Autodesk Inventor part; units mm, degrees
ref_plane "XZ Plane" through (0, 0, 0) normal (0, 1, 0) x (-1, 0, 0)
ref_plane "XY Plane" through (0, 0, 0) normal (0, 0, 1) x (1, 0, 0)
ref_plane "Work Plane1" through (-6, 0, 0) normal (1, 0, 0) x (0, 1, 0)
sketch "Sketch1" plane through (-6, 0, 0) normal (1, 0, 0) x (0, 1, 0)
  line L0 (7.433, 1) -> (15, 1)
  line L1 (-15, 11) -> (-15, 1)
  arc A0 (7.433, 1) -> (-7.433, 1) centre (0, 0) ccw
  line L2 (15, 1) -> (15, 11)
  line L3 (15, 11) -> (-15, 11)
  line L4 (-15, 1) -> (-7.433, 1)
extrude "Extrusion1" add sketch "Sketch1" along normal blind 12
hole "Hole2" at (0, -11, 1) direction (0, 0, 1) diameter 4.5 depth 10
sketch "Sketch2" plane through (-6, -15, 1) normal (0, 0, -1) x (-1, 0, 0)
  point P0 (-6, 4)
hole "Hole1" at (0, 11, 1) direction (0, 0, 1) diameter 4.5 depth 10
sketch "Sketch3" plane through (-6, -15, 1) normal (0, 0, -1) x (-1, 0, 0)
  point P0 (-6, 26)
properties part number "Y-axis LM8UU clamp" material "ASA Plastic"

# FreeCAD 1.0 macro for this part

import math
import FreeCAD as App
import Part
import Sketcher
from FreeCAD import Vector

doc = App.newDocument("Part")
body = doc.addObject("PartDesign::Body", "Body")

sketch1 = body.newObject("Sketcher::SketchObject", "Sketch")
sketch1.AttachmentSupport = (doc.getObject("YZ_Plane"), [""])
sketch1.MapMode = "FlatFace"
sketch1.AttachmentOffset = App.Placement(Vector(0, 0, -6), App.Rotation())
sketch1.addGeometry(Part.ArcOfCircle(Part.Circle(Vector(0, 0, 0), Vector(0, 0, 1), 7.499966), math.radians(7.662291), math.radians(172.337709)), False)
sketch1.addGeometry(Part.LineSegment(Vector(7.433, 1, 0), Vector(15, 1, 0)), False)
sketch1.addGeometry(Part.LineSegment(Vector(15, 1, 0), Vector(15, 11, 0)), False)
sketch1.addGeometry(Part.LineSegment(Vector(15, 11, 0), Vector(-15, 11, 0)), False)
sketch1.addGeometry(Part.LineSegment(Vector(-15, 11, 0), Vector(-15, 1, 0)), False)
sketch1.addGeometry(Part.LineSegment(Vector(-15, 1, 0), Vector(-7.433, 1, 0)), False)
sketch1.addConstraint(Sketcher.Constraint("Coincident", 0, 1, 1, 1))
sketch1.addConstraint(Sketcher.Constraint("Coincident", 1, 2, 2, 1))
sketch1.addConstraint(Sketcher.Constraint("Coincident", 2, 2, 3, 1))
sketch1.addConstraint(Sketcher.Constraint("Coincident", 3, 2, 4, 1))
sketch1.addConstraint(Sketcher.Constraint("Coincident", 4, 2, 5, 1))
sketch1.addConstraint(Sketcher.Constraint("Coincident", 5, 2, 0, 2))
sketch1.addConstraint(Sketcher.Constraint("Horizontal", 1))
sketch1.addConstraint(Sketcher.Constraint("Vertical", 2))
sketch1.addConstraint(Sketcher.Constraint("Horizontal", 3))
sketch1.addConstraint(Sketcher.Constraint("Vertical", 4))
sketch1.addConstraint(Sketcher.Constraint("Horizontal", 5))
sketch1.addConstraint(Sketcher.Constraint("Coincident", 0, 3, -1, 1))
sketch1.addConstraint(Sketcher.Constraint("Symmetric", 1, 2, 4, 2, -2))
sketch1.addConstraint(Sketcher.Constraint("Radius", 0, 7.5))
sketch1.addConstraint(Sketcher.Constraint("DistanceX", 3, 2, 3, 1, 30.0))
sketch1.addConstraint(Sketcher.Constraint("DistanceY", 2, 1, 2, 2, 10.0))
sketch1.addConstraint(Sketcher.Constraint("DistanceY", -1, 1, 0, 1, 1.0))
pad1 = body.newObject("PartDesign::Pad", "Pad")
pad1.Profile = sketch1
pad1.Length = 12

sketch2 = body.newObject("Sketcher::SketchObject", "Sketch001")
sketch2.AttachmentSupport = (doc.getObject("XY_Plane"), [""])
sketch2.MapMode = "FlatFace"
sketch2.AttachmentOffset = App.Placement(Vector(0, 0, 1), App.Rotation())
sketch2.addGeometry(Part.Circle(Vector(0, -11, 0), Vector(0, 0, 1), 2.25), False)
sketch2.addConstraint(Sketcher.Constraint("PointOnObject", 0, 3, -2))
sketch2.addConstraint(Sketcher.Constraint("Diameter", 0, 4.5))
sketch2.addConstraint(Sketcher.Constraint("DistanceY", 0, 3, -1, 1, 11.0))
doc.recompute()
hole = body.newObject("PartDesign::Hole", "Hole")
hole.Profile = sketch2
hole.ThreadType = "None"
hole.Diameter = 4.5
hole.DepthType = "Dimension"
hole.Depth = 10
hole.DrillPoint = "Flat"
hole.Reversed = True

sketch3 = body.newObject("Sketcher::SketchObject", "Sketch002")
sketch3.AttachmentSupport = (doc.getObject("XY_Plane"), [""])
sketch3.MapMode = "FlatFace"
sketch3.AttachmentOffset = App.Placement(Vector(0, 0, 1), App.Rotation())
sketch3.addGeometry(Part.Circle(Vector(0, 11, 0), Vector(0, 0, 1), 2.25), False)
sketch3.addConstraint(Sketcher.Constraint("PointOnObject", 0, 3, -2))
sketch3.addConstraint(Sketcher.Constraint("Diameter", 0, 4.5))
sketch3.addConstraint(Sketcher.Constraint("DistanceY", -1, 1, 0, 3, 11.0))
doc.recompute()
hole2 = body.newObject("PartDesign::Hole", "Hole001")
hole2.Profile = sketch3
hole2.ThreadType = "None"
hole2.Diameter = 4.5
hole2.DepthType = "Dimension"
hole2.Depth = 10
hole2.DrillPoint = "Flat"
hole2.Reversed = True

doc.recompute()
